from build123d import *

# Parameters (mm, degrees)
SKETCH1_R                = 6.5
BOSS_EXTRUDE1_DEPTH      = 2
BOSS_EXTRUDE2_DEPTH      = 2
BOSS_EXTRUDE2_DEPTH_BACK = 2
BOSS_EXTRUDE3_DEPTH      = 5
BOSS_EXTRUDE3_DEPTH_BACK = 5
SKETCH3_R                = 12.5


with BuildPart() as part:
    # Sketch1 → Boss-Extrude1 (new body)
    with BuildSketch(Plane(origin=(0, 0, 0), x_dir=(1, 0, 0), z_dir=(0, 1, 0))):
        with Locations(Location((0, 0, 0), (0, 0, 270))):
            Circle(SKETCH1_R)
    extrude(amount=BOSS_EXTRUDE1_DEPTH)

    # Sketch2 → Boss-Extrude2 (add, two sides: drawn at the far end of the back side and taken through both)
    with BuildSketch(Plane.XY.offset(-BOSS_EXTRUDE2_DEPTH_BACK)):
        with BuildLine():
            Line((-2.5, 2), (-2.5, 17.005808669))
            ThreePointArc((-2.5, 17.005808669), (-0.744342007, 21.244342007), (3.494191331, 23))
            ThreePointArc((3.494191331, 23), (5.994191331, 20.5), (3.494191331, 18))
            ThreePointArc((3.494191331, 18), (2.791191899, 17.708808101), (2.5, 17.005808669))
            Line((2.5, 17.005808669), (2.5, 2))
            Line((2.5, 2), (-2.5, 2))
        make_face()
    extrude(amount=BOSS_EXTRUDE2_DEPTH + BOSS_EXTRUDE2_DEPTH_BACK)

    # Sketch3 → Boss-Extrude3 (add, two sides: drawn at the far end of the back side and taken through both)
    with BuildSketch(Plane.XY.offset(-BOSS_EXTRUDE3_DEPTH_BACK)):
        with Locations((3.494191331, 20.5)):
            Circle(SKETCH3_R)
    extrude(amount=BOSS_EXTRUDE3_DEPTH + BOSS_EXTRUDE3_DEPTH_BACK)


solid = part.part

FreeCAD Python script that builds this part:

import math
import FreeCAD as App
import Part
import Sketcher

V = App.Vector

doc = App.newDocument("Part")
body = doc.addObject("PartDesign::Body", "Body")

# Sketch on XZ plane
sketch1 = body.newObject("Sketcher::SketchObject", "Sketch")
sketch1.AttachmentSupport = (doc.getObject("XZ_Plane"), [""])
sketch1.MapMode = "FlatFace"
sketch1.addGeometry(Part.Circle(V(0, 0, 0), V(0, 0, 1), 6.5), False)
sketch1.addConstraint([
    Sketcher.Constraint("Coincident", 0, 3, -1, 1),
    Sketcher.Constraint("Diameter", 0, 13.0),
])
pad1 = body.newObject("PartDesign::Pad", "Pad")
pad1.Profile = sketch1
pad1.Length = 2
pad1.Reversed = True

# Sketch on XY plane
sketch2 = body.newObject("Sketcher::SketchObject", "Sketch001")
sketch2.AttachmentSupport = (doc.getObject("XY_Plane"), [""])
sketch2.MapMode = "FlatFace"
sketch2.addGeometry([
    Part.LineSegment(V(-2.5, 17.005809, 0), V(-2.5, 2, 0)),  # 0
    Part.LineSegment(V(-2.5, 2, 0), V(2.5, 2, 0)),  # 1
    Part.LineSegment(V(2.5, 2, 0), V(2.5, 17.005809, 0)),  # 2
    Part.ArcOfCircle(Part.Circle(V(3.494191, 17.005809, 0), V(0, 0, 1), 0.994191), math.radians(90), math.radians(180)),  # 3
    Part.ArcOfCircle(Part.Circle(V(3.494191, 20.5, 0), V(0, 0, 1), 2.5), math.radians(-90), math.radians(90)),  # 4
    Part.ArcOfCircle(Part.Circle(V(3.494191, 17.005809, 0), V(0, 0, 1), 5.994191), math.radians(90), math.radians(180)),  # 5
], False)
sketch2.addConstraint([
    Sketcher.Constraint("Coincident", 0, 2, 1, 1),
    Sketcher.Constraint("Coincident", 1, 2, 2, 1),
    Sketcher.Constraint("Tangent", 2, 2, 3, 2),
    Sketcher.Constraint("Tangent", 3, 1, 4, 1),
    Sketcher.Constraint("Tangent", 4, 2, 5, 1),
    Sketcher.Constraint("Tangent", 5, 2, 0, 1),
    Sketcher.Constraint("Vertical", 0),
    Sketcher.Constraint("Horizontal", 1),
    Sketcher.Constraint("Vertical", 2),
    Sketcher.Constraint("Coincident", 5, 3, 3, 3),
    Sketcher.Constraint("Vertical", 3, 3, 4, 3),
    Sketcher.Constraint("Radius", 4, 2.5),
    Sketcher.Constraint("DistanceY", -1, 1, 0, 2, 2.0),
    Sketcher.Constraint("DistanceY", -1, 1, 3, 1, 18.0),
    Sketcher.Constraint("DistanceX", 0, 2, -1, 1, 2.5),
    Sketcher.Constraint("Radius", 3, 0.994191),
])
pad2 = body.newObject("PartDesign::Pad", "Pad001")
pad2.Profile = sketch2
pad2.Type = "TwoLengths"
pad2.Length = 2
pad2.Length2 = 2

# Sketch on XY plane
sketch3 = body.newObject("Sketcher::SketchObject", "Sketch002")
sketch3.AttachmentSupport = (doc.getObject("XY_Plane"), [""])
sketch3.MapMode = "FlatFace"
sketch3.addGeometry(Part.Circle(V(3.494191, 20.5, 0), V(0, 0, 1), 12.5), False)
sketch3.addConstraint([
    Sketcher.Constraint("Diameter", 0, 25.0),
    Sketcher.Constraint("DistanceY", -1, 1, 0, 3, 20.5),
    Sketcher.Constraint("DistanceX", -1, 1, 0, 3, 3.494191),
])
pad3 = body.newObject("PartDesign::Pad", "Pad002")
pad3.Profile = sketch3
pad3.Type = "TwoLengths"
pad3.Length = 5
pad3.Length2 = 5

doc.recompute()
